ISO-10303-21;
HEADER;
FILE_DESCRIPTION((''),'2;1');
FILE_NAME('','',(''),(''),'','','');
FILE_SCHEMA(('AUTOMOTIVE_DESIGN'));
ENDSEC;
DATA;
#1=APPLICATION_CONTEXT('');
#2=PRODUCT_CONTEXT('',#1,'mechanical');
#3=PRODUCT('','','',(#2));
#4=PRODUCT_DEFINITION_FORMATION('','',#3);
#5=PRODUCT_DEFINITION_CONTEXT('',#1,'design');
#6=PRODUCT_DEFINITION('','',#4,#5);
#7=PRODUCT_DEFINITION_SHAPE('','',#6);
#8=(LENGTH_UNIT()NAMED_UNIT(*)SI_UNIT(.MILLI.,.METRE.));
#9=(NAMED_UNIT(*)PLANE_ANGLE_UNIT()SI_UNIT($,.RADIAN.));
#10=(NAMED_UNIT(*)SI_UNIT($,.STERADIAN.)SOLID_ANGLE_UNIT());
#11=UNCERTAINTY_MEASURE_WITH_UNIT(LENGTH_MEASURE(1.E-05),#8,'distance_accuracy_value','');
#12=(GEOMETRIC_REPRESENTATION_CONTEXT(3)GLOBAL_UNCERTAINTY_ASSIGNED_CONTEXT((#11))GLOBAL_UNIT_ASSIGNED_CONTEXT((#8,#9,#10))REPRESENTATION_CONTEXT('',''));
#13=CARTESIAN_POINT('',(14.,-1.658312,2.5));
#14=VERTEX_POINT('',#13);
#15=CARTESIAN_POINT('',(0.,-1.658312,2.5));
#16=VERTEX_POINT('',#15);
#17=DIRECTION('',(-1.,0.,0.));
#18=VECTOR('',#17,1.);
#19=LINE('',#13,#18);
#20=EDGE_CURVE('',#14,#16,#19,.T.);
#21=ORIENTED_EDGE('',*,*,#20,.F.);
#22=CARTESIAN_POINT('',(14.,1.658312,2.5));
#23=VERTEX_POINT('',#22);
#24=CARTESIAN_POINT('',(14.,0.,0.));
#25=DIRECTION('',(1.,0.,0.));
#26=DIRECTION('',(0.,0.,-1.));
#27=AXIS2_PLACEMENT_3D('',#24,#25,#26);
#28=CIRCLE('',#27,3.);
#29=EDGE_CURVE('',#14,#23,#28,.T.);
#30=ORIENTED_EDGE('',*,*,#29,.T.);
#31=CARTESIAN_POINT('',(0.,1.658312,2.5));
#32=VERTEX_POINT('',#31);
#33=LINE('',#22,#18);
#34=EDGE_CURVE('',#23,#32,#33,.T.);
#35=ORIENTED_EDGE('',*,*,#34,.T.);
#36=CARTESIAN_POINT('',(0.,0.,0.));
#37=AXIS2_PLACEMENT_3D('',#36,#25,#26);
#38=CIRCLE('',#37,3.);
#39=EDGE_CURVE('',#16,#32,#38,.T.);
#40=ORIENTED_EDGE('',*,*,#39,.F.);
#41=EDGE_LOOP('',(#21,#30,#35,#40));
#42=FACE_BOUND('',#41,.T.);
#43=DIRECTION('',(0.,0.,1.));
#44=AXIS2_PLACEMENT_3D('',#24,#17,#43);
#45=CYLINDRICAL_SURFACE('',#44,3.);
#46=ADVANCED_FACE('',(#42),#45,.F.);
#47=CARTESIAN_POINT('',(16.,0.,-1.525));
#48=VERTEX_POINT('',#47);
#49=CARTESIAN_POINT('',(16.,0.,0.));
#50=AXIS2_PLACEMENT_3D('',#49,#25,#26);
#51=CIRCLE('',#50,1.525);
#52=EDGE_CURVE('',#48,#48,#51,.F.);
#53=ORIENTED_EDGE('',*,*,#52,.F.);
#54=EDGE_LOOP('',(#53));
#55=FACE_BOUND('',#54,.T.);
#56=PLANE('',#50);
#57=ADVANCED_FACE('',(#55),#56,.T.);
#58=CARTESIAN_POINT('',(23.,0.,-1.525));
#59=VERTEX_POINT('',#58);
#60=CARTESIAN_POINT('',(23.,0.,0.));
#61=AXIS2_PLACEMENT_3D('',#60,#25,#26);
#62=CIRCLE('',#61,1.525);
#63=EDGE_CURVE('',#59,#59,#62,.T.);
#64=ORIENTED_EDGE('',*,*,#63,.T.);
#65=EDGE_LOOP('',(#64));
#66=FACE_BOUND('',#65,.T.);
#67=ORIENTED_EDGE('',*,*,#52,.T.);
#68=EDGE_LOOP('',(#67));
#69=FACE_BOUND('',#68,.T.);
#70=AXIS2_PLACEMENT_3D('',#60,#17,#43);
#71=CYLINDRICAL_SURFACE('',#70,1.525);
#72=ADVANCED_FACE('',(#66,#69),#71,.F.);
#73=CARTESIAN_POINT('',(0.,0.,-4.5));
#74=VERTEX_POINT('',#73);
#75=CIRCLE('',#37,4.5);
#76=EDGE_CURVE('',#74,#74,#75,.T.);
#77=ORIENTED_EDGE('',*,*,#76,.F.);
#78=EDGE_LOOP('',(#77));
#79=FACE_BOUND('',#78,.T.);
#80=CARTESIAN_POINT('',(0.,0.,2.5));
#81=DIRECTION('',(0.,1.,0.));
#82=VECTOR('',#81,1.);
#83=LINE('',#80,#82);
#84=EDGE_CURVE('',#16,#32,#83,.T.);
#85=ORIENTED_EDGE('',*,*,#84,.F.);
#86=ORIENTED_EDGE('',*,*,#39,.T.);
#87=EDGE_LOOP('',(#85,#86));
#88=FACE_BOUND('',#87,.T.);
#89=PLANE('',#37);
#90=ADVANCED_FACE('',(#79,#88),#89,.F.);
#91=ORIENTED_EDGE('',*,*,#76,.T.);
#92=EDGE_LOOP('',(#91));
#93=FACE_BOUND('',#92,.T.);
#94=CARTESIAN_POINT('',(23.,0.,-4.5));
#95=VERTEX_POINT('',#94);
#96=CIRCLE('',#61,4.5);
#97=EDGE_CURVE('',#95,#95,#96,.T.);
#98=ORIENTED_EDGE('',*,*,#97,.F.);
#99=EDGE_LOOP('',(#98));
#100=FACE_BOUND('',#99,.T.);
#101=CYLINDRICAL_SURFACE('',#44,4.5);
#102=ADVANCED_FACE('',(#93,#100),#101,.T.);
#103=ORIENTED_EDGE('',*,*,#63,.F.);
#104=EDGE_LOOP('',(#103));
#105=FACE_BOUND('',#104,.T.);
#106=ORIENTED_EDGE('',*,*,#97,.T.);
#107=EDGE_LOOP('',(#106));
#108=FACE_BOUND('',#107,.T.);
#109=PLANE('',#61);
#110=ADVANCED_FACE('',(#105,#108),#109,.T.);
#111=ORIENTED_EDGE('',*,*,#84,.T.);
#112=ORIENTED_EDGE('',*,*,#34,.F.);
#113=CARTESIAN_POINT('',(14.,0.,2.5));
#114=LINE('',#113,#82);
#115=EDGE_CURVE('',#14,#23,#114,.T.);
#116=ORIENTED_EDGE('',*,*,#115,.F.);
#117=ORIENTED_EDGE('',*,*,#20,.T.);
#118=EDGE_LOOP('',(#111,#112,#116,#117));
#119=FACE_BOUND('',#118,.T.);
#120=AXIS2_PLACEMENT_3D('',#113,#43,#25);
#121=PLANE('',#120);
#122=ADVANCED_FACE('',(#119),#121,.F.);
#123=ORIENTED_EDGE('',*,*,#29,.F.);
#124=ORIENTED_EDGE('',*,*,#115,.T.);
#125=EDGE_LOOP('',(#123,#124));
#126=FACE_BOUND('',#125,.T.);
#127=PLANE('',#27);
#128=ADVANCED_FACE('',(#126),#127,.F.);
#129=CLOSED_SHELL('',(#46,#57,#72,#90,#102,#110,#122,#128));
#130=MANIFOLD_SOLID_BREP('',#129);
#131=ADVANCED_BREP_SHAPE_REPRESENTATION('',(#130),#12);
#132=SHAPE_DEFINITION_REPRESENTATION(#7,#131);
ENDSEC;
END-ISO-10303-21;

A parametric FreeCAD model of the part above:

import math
import FreeCAD as App
import Part
import Sketcher

V = App.Vector

doc = App.newDocument("Part")
body = doc.addObject("PartDesign::Body", "Body")

# Sketch on YZ plane
sketch1 = body.newObject("Sketcher::SketchObject", "Sketch")
sketch1.AttachmentSupport = (doc.getObject("YZ_Plane"), [""])
sketch1.MapMode = "FlatFace"
sketch1.addGeometry([
    Part.Circle(V(0, 0, 0), V(0, 0, 1), 4.5),
    Part.ArcOfCircle(Part.Circle(V(0, 0, 0), V(0, 0, 1), 3), math.radians(124), math.radians(416)),
    Part.LineSegment(V(-1.7, 2.5, 0), V(1.7, 2.5, 0)),
], False)
sketch1.addConstraint([
    Sketcher.Constraint("Coincident", 1, 1, 2, 1),
    Sketcher.Constraint("Coincident", 2, 2, 1, 2),
    Sketcher.Constraint("Horizontal", 2),
    Sketcher.Constraint("Coincident", 0, 3, -1, 1),
    Sketcher.Constraint("Coincident", 1, 3, -1, 1),
    Sketcher.Constraint("Diameter", 0, 9.0),
    Sketcher.Constraint("Radius", 1, 3.0),
    Sketcher.Constraint("DistanceY", -1, 1, 1, 1, 2.5),
])
pad1 = body.newObject("PartDesign::Pad", "Pad")
pad1.Profile = sketch1
pad1.Length = 14

# Sketch on YZ plane
sketch2 = body.newObject("Sketcher::SketchObject", "Sketch001")
sketch2.AttachmentSupport = (doc.getObject("YZ_Plane"), [""])
sketch2.MapMode = "FlatFace"
sketch2.AttachmentOffset = App.Placement(V(0, 0, 14), App.Rotation())
sketch2.addGeometry(Part.Circle(V(0, 0, 0), V(0, 0, 1), 4.5), False)
sketch2.addConstraint([
    Sketcher.Constraint("Coincident", 0, 3, -1, 1),
    Sketcher.Constraint("Diameter", 0, 9.0),
])
pad2 = body.newObject("PartDesign::Pad", "Pad001")
pad2.Profile = sketch2
pad2.Length = 2

# Sketch on YZ plane
sketch3 = body.newObject("Sketcher::SketchObject", "Sketch002")
sketch3.AttachmentSupport = (doc.getObject("YZ_Plane"), [""])
sketch3.MapMode = "FlatFace"
sketch3.AttachmentOffset = App.Placement(V(0, 0, 16), App.Rotation())
sketch3.addGeometry([
    Part.Circle(V(0, 0, 0), V(0, 0, 1), 4.5),
    Part.Circle(V(0, 0, 0), V(0, 0, 1), 1.5),
], False)
sketch3.addConstraint([
    Sketcher.Constraint("Coincident", 0, 3, -1, 1),
    Sketcher.Constraint("Coincident", 1, 3, -1, 1),
    Sketcher.Constraint("Diameter", 0, 9.0),
    Sketcher.Constraint("Diameter", 1, 3.05),
])
pad3 = body.newObject("PartDesign::Pad", "Pad002")
pad3.Profile = sketch3
pad3.Length = 7

doc.recompute()
